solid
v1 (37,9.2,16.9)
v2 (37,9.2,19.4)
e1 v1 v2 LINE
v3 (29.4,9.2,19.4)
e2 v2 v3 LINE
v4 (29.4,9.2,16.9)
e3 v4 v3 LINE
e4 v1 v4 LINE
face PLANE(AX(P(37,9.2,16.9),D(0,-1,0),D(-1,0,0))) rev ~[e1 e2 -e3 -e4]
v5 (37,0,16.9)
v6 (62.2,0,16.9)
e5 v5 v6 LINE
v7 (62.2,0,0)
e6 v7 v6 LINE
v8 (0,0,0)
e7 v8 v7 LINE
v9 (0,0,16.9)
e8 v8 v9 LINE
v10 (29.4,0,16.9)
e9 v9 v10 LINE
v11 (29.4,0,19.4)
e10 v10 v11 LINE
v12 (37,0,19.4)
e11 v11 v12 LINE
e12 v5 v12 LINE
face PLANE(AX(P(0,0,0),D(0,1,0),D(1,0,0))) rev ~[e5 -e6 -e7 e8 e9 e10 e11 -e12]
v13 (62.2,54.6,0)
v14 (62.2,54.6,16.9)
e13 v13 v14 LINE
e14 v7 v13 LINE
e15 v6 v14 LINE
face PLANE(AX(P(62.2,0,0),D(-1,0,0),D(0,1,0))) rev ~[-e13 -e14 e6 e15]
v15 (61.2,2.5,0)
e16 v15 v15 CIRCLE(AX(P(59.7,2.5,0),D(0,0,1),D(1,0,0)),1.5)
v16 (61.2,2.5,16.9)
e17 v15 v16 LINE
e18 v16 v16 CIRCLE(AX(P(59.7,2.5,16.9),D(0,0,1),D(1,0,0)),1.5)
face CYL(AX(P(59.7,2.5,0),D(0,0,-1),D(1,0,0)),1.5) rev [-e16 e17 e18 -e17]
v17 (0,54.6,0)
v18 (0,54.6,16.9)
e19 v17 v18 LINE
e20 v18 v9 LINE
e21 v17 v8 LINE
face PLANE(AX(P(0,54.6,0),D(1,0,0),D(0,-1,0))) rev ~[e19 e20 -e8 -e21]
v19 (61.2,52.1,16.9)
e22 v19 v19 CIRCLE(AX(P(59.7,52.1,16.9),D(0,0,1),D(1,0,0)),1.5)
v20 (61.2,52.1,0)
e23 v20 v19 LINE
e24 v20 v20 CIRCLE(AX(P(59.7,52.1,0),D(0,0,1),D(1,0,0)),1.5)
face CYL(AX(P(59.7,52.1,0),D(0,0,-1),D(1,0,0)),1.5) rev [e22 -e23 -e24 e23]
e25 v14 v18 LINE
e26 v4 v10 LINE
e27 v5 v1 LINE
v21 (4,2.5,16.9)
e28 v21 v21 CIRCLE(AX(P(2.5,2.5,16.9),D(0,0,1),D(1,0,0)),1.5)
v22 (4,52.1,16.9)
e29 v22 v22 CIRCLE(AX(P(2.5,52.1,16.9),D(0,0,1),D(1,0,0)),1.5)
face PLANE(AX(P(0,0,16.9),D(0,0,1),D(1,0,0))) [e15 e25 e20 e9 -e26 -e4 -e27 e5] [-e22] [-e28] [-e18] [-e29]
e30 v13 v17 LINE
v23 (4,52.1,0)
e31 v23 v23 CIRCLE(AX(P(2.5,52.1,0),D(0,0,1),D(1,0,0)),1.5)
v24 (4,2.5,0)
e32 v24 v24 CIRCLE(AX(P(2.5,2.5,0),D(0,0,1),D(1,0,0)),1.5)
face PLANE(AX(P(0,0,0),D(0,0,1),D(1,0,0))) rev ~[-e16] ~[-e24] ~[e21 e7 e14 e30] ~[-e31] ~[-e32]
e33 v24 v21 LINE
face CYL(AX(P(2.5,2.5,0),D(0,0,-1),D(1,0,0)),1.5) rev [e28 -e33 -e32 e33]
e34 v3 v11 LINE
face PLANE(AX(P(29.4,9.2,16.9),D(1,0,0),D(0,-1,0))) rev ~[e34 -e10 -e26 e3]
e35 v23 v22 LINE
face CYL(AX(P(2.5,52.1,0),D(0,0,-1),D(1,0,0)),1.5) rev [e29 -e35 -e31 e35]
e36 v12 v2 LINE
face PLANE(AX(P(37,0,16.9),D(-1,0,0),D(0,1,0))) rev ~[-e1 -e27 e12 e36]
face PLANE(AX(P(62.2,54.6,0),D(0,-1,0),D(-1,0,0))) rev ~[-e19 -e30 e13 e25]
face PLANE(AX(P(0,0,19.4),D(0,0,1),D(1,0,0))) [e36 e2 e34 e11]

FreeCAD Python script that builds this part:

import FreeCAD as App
import Part
import Sketcher
Q = App.Units.Quantity


def add_polygon(sketch, points):
    """Adds a closed chain of lines whose ends are joined by coincident constraints."""
    first, n = sketch.GeometryCount, len(points)
    for a, b in zip(points, points[1:] + points[:1]):
        sketch.addGeometry(Part.LineSegment(App.Vector(*a, 0), App.Vector(*b, 0)), False)
    for i in range(n):
        sketch.addConstraint(Sketcher.Constraint("Coincident", first + i, 2, first + (i + 1) % n, 1))

doc = App.newDocument("Part")
body = doc.addObject("PartDesign::Body", "Body")

# Sketch on XY plane
sketch1 = body.newObject("Sketcher::SketchObject", "Sketch")
sketch1.AttachmentSupport = (doc.getObject("XY_Plane"), [""])
sketch1.MapMode = "FlatFace"
add_polygon(sketch1, [(0, 54.6), (0, 0), (62.2, 0), (62.2, 54.6)])  # lines 0-3
sketch1.addGeometry(Part.Circle(App.Vector(2.5, 2.5, 0), App.Vector(0, 0, 1), 1.5), False)  # 4
sketch1.addGeometry(Part.Circle(App.Vector(59.7, 2.5, 0), App.Vector(0, 0, 1), 1.5), False)  # 5
sketch1.addGeometry(Part.Circle(App.Vector(2.5, 52.1, 0), App.Vector(0, 0, 1), 1.5), False)  # 6
sketch1.addGeometry(Part.Circle(App.Vector(59.7, 52.1, 0), App.Vector(0, 0, 1), 1.5), False)  # 7
sketch1.addConstraint(Sketcher.Constraint("Vertical", 0))
sketch1.addConstraint(Sketcher.Constraint("Horizontal", 1))
sketch1.addConstraint(Sketcher.Constraint("Vertical", 2))
sketch1.addConstraint(Sketcher.Constraint("Horizontal", 3))
sketch1.addConstraint(Sketcher.Constraint("Coincident", 0, 2, -1, 1))
sketch1.addConstraint(Sketcher.Constraint("Equal", 4, 5))
sketch1.addConstraint(Sketcher.Constraint("Equal", 5, 6))
sketch1.addConstraint(Sketcher.Constraint("Equal", 6, 7))
sketch1.addConstraint(Sketcher.Constraint("Horizontal", 4, 3, 5, 3))
sketch1.addConstraint(Sketcher.Constraint("Horizontal", 6, 3, 7, 3))
sketch1.addConstraint(Sketcher.Constraint("Vertical", 4, 3, 6, 3))
sketch1.addConstraint(Sketcher.Constraint("Vertical", 5, 3, 7, 3))
sketch1.addConstraint(Sketcher.Constraint("Diameter", 4, Q("3 mm")))
sketch1.addConstraint(Sketcher.Constraint("DistanceX", 1, 1, 1, 2, Q("62.2 mm")))
sketch1.addConstraint(Sketcher.Constraint("DistanceY", 0, 2, 0, 1, Q("54.6 mm")))
sketch1.addConstraint(Sketcher.Constraint("DistanceX", -1, 1, 4, 3, Q("2.5 mm")))
sketch1.addConstraint(Sketcher.Constraint("DistanceY", -1, 1, 4, 3, Q("2.5 mm")))
sketch1.addConstraint(Sketcher.Constraint("DistanceX", -1, 1, 5, 3, Q("59.7 mm")))
sketch1.addConstraint(Sketcher.Constraint("DistanceY", -1, 1, 6, 3, Q("52.1 mm")))
pad1 = body.newObject("PartDesign::Pad", "Pad")
pad1.Profile = sketch1
pad1.Length = 16.9

# Sketch on XY plane
sketch2 = body.newObject("Sketcher::SketchObject", "Sketch001")
sketch2.AttachmentSupport = (doc.getObject("XY_Plane"), [""])
sketch2.MapMode = "FlatFace"
sketch2.AttachmentOffset = App.Placement(App.Vector(0, 0, 16.9), App.Rotation())
add_polygon(sketch2, [(29.4, 9.2), (29.4, 0), (37, 0), (37, 9.2)])  # lines 0-3
sketch2.addConstraint(Sketcher.Constraint("Vertical", 0))
sketch2.addConstraint(Sketcher.Constraint("Horizontal", 1))
sketch2.addConstraint(Sketcher.Constraint("Vertical", 2))
sketch2.addConstraint(Sketcher.Constraint("Horizontal", 3))
sketch2.addConstraint(Sketcher.Constraint("PointOnObject", 0, 2, -1))
sketch2.addConstraint(Sketcher.Constraint("DistanceX", 1, 1, 1, 2, Q("7.6 mm")))
sketch2.addConstraint(Sketcher.Constraint("DistanceY", 0, 2, 0, 1, Q("9.2 mm")))
sketch2.addConstraint(Sketcher.Constraint("DistanceX", -1, 1, 1, 2, Q("37 mm")))
pad2 = body.newObject("PartDesign::Pad", "Pad001")
pad2.Profile = sketch2
pad2.Length = 2.5

doc.recompute()
